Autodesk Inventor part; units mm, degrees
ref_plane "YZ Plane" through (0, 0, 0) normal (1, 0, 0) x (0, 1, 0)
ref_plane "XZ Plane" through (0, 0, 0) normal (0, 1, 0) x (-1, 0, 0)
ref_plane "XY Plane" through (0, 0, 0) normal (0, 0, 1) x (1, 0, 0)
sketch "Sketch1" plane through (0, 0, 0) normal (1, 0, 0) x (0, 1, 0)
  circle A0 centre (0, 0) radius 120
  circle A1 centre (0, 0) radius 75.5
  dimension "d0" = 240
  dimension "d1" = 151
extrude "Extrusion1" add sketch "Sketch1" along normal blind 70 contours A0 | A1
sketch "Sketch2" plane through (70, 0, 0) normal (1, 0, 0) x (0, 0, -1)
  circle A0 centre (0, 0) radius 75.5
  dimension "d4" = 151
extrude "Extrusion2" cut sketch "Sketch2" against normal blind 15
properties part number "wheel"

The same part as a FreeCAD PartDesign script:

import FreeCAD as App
import Part
import Sketcher
from FreeCAD import Vector
Q = App.Units.Quantity

doc = App.newDocument("Part")
body = doc.addObject("PartDesign::Body", "Body")

sketch1 = body.newObject("Sketcher::SketchObject", "Sketch")
sketch1.AttachmentSupport = (doc.getObject("YZ_Plane"), [""])
sketch1.MapMode = "FlatFace"
sketch1.addGeometry(Part.Circle(Vector(0, 0, 0), Vector(0, 0, 1), 120), False)
sketch1.addConstraint(Sketcher.Constraint("Coincident", 0, 3, -1, 1))
sketch1.addConstraint(Sketcher.Constraint("Diameter", 0, Q("240 mm")))
pad1 = body.newObject("PartDesign::Pad", "Pad")
pad1.Profile = sketch1
pad1.Length = 70

sketch2 = body.newObject("Sketcher::SketchObject", "Sketch001")
sketch2.AttachmentSupport = (doc.getObject("YZ_Plane"), [""])
sketch2.MapMode = "FlatFace"
sketch2.AttachmentOffset = App.Placement(Vector(0, 0, 70), App.Rotation())
sketch2.addGeometry(Part.Circle(Vector(0, 0, 0), Vector(0, 0, 1), 76), False)
sketch2.addConstraint(Sketcher.Constraint("Coincident", 0, 3, -1, 1))
sketch2.addConstraint(Sketcher.Constraint("Diameter", 0, Q("151 mm")))
pocket1 = body.newObject("PartDesign::Pocket", "Pocket")
pocket1.Profile = sketch2
pocket1.Length = 15

doc.recompute()
